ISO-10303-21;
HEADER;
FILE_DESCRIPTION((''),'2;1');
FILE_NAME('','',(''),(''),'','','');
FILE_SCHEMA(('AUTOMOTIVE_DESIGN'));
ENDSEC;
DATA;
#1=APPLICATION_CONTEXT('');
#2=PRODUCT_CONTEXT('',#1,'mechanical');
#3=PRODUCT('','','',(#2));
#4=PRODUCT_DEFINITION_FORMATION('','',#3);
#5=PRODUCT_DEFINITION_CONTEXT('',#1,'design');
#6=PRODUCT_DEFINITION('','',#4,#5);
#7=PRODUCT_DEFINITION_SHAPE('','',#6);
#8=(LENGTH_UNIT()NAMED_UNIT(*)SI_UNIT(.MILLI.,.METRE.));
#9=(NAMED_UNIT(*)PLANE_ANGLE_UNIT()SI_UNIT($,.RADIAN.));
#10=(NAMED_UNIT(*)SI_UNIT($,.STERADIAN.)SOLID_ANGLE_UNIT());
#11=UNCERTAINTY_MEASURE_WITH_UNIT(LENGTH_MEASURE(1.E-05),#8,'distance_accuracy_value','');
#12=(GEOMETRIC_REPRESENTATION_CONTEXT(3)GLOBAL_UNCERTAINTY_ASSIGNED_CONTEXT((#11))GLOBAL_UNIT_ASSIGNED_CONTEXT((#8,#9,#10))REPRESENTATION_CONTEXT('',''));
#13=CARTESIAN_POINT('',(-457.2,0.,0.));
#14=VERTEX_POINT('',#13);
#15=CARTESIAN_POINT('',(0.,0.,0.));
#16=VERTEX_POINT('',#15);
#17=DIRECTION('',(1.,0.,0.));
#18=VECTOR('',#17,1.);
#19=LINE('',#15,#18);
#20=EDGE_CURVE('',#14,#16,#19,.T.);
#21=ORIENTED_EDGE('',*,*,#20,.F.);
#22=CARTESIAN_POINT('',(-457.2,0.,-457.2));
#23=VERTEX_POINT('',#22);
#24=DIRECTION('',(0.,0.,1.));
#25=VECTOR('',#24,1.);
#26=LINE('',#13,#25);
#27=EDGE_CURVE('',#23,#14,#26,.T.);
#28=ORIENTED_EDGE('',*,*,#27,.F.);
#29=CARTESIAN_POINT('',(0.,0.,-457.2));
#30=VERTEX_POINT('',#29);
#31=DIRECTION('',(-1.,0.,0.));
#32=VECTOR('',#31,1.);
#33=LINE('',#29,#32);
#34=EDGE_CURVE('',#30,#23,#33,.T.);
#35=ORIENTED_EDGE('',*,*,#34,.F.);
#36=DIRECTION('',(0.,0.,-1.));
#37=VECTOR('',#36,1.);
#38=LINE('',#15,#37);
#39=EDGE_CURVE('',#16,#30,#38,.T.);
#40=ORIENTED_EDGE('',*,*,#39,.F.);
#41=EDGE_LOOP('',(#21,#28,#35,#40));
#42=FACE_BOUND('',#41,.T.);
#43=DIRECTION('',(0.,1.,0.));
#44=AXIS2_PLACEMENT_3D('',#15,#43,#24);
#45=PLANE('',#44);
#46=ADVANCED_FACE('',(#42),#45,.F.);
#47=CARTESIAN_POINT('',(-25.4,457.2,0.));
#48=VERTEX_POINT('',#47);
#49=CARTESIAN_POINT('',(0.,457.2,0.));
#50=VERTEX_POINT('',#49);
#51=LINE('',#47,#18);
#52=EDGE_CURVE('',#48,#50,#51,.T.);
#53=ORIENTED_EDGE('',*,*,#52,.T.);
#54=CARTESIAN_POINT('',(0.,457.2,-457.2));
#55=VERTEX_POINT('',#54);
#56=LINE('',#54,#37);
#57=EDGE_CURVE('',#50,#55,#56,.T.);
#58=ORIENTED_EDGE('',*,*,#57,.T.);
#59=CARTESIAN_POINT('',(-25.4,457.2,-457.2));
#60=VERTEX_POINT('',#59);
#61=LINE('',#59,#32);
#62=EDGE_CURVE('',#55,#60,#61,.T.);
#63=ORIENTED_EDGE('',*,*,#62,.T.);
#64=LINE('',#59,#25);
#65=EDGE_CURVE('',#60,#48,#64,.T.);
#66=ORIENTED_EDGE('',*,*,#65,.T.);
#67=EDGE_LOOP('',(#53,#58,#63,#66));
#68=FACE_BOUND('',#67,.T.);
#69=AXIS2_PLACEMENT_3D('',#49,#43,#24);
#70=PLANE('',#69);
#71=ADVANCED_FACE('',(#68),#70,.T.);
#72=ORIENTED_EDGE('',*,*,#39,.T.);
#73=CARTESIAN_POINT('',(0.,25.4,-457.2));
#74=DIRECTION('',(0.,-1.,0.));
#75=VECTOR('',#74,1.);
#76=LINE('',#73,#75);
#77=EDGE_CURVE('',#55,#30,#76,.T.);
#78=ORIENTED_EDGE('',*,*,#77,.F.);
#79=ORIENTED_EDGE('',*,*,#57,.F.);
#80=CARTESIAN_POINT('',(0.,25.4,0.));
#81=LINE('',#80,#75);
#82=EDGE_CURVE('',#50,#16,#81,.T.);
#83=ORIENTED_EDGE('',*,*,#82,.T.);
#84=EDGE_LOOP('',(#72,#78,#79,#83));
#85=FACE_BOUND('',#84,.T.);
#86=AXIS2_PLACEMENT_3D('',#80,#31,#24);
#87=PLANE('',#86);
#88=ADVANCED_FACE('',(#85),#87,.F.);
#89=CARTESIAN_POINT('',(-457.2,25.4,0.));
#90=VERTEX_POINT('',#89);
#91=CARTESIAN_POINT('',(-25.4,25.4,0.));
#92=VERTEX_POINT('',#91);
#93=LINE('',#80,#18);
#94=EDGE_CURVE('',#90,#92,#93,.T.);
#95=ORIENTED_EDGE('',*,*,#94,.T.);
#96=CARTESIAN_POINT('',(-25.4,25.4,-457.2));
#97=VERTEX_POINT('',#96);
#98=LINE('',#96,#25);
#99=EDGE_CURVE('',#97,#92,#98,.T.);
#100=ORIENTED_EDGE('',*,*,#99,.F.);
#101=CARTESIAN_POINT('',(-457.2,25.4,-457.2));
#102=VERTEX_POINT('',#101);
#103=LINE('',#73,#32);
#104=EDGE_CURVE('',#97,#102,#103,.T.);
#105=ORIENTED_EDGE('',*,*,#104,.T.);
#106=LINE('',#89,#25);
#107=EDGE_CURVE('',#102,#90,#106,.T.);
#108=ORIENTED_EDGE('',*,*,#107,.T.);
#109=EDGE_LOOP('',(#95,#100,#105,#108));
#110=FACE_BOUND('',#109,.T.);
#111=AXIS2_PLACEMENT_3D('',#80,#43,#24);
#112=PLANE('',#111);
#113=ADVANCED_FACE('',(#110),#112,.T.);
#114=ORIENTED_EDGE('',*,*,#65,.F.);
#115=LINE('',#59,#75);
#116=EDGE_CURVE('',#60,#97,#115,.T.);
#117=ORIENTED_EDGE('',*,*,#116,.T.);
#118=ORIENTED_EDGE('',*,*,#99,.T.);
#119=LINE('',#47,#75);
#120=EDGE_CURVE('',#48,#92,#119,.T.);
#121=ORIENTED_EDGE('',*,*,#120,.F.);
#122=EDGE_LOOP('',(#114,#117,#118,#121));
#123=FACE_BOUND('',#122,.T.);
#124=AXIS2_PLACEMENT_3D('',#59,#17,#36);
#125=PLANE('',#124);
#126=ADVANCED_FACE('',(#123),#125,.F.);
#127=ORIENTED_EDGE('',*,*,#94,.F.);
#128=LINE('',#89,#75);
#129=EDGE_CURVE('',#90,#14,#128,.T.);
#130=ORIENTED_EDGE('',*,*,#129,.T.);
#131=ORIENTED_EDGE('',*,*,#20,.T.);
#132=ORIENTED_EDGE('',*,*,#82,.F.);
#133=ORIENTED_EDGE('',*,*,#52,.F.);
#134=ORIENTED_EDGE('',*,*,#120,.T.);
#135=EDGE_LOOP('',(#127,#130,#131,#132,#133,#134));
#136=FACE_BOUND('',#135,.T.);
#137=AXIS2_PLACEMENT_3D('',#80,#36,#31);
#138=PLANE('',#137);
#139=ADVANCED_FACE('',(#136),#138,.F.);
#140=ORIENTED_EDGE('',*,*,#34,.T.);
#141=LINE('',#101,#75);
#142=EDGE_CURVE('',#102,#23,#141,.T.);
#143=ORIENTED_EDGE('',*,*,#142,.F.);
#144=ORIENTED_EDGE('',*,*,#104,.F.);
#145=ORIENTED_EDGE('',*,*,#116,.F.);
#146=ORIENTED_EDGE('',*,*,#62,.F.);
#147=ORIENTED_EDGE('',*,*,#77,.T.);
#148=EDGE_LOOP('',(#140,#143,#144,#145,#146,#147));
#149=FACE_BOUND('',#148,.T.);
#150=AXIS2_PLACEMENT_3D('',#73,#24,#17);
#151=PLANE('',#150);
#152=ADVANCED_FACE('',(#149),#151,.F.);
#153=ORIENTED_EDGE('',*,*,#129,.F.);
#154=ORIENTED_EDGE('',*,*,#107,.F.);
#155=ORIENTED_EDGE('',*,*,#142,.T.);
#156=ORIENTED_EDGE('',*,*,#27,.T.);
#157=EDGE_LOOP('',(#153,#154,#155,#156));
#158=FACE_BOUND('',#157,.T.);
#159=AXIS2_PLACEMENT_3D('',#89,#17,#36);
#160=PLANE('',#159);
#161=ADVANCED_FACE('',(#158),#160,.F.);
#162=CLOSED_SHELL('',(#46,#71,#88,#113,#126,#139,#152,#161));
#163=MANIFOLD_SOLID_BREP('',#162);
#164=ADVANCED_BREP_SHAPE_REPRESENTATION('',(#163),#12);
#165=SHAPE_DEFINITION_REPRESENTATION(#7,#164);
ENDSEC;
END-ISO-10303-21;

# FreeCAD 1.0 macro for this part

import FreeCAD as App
import Part
import Sketcher
from FreeCAD import Vector
Q = App.Units.Quantity


def add_polygon(sketch, points):
    """Adds a closed chain of lines whose ends are joined by coincident constraints."""
    first, n = sketch.GeometryCount, len(points)
    for a, b in zip(points, points[1:] + points[:1]):
        sketch.addGeometry(Part.LineSegment(App.Vector(*a, 0), App.Vector(*b, 0)), False)
    for i in range(n):
        sketch.addConstraint(Sketcher.Constraint("Coincident", first + i, 2, first + (i + 1) % n, 1))

doc = App.newDocument("Part")
params = doc.addObject("Spreadsheet::Sheet", "Params")
for row, (alias, value) in enumerate([
    ("sketch1_width", "18 in"),
    ("pad1_length", "1 in"),
    ("sketch2_width", "1 in"),
    ("sketch2_height", "18 in"),
    ("pad2_length", "17 in"),
], start=1):
    params.set(f"A{row}", alias)
    params.set(f"B{row}", "=" + value)
    params.setAlias(f"B{row}", alias)

body = doc.addObject("PartDesign::Body", "Body")

# Sketch on XZ plane
sketch1 = body.newObject("Sketcher::SketchObject", "Sketch")
sketch1.AttachmentSupport = (doc.getObject("XZ_Plane"), [""])
sketch1.MapMode = "FlatFace"
add_polygon(sketch1, [(-457.2, -457.2), (-457.2, 0), (0, 0), (0, -457.2)])  # lines 0-3
sketch1.addConstraint([
    Sketcher.Constraint("Vertical", 0),
    Sketcher.Constraint("Horizontal", 1),
    Sketcher.Constraint("Vertical", 2),
    Sketcher.Constraint("Horizontal", 3),
    Sketcher.Constraint("Coincident", 1, 2, -1, 1),
    Sketcher.Constraint("Equal", 3, 0),
    Sketcher.Constraint("DistanceX", 1, 1, 1, 2, Q("18 in")),
])
sketch1.setExpression("Constraints[10]", "Params.sketch1_width")
pad1 = body.newObject("PartDesign::Pad", "Pad")
pad1.Profile = sketch1
pad1.setExpression("Length", "Params.pad1_length")
pad1.Reversed = True

# Sketch on XZ plane
sketch2 = body.newObject("Sketcher::SketchObject", "Sketch001")
sketch2.AttachmentSupport = (doc.getObject("XZ_Plane"), [""])
sketch2.MapMode = "FlatFace"
sketch2.AttachmentOffset = App.Placement(Vector(0, 0, -1 * 25.4), App.Rotation())
add_polygon(sketch2, [(-25.4, -457.2), (-25.4, 0), (0, 0), (0, -457.2)])  # lines 0-3
sketch2.addConstraint([
    Sketcher.Constraint("Vertical", 0),
    Sketcher.Constraint("Horizontal", 1),
    Sketcher.Constraint("Vertical", 2),
    Sketcher.Constraint("Horizontal", 3),
    Sketcher.Constraint("Coincident", 1, 2, -1, 1),
    Sketcher.Constraint("DistanceX", 1, 1, 1, 2, Q("1 in")),
    Sketcher.Constraint("DistanceY", 0, 1, 0, 2, Q("18 in")),
])
sketch2.setExpression("Constraints[9]", "Params.sketch2_width")
sketch2.setExpression("Constraints[10]", "Params.sketch2_height")
pad2 = body.newObject("PartDesign::Pad", "Pad001")
pad2.Profile = sketch2
pad2.setExpression("Length", "Params.pad2_length")
pad2.Reversed = True

doc.recompute()
